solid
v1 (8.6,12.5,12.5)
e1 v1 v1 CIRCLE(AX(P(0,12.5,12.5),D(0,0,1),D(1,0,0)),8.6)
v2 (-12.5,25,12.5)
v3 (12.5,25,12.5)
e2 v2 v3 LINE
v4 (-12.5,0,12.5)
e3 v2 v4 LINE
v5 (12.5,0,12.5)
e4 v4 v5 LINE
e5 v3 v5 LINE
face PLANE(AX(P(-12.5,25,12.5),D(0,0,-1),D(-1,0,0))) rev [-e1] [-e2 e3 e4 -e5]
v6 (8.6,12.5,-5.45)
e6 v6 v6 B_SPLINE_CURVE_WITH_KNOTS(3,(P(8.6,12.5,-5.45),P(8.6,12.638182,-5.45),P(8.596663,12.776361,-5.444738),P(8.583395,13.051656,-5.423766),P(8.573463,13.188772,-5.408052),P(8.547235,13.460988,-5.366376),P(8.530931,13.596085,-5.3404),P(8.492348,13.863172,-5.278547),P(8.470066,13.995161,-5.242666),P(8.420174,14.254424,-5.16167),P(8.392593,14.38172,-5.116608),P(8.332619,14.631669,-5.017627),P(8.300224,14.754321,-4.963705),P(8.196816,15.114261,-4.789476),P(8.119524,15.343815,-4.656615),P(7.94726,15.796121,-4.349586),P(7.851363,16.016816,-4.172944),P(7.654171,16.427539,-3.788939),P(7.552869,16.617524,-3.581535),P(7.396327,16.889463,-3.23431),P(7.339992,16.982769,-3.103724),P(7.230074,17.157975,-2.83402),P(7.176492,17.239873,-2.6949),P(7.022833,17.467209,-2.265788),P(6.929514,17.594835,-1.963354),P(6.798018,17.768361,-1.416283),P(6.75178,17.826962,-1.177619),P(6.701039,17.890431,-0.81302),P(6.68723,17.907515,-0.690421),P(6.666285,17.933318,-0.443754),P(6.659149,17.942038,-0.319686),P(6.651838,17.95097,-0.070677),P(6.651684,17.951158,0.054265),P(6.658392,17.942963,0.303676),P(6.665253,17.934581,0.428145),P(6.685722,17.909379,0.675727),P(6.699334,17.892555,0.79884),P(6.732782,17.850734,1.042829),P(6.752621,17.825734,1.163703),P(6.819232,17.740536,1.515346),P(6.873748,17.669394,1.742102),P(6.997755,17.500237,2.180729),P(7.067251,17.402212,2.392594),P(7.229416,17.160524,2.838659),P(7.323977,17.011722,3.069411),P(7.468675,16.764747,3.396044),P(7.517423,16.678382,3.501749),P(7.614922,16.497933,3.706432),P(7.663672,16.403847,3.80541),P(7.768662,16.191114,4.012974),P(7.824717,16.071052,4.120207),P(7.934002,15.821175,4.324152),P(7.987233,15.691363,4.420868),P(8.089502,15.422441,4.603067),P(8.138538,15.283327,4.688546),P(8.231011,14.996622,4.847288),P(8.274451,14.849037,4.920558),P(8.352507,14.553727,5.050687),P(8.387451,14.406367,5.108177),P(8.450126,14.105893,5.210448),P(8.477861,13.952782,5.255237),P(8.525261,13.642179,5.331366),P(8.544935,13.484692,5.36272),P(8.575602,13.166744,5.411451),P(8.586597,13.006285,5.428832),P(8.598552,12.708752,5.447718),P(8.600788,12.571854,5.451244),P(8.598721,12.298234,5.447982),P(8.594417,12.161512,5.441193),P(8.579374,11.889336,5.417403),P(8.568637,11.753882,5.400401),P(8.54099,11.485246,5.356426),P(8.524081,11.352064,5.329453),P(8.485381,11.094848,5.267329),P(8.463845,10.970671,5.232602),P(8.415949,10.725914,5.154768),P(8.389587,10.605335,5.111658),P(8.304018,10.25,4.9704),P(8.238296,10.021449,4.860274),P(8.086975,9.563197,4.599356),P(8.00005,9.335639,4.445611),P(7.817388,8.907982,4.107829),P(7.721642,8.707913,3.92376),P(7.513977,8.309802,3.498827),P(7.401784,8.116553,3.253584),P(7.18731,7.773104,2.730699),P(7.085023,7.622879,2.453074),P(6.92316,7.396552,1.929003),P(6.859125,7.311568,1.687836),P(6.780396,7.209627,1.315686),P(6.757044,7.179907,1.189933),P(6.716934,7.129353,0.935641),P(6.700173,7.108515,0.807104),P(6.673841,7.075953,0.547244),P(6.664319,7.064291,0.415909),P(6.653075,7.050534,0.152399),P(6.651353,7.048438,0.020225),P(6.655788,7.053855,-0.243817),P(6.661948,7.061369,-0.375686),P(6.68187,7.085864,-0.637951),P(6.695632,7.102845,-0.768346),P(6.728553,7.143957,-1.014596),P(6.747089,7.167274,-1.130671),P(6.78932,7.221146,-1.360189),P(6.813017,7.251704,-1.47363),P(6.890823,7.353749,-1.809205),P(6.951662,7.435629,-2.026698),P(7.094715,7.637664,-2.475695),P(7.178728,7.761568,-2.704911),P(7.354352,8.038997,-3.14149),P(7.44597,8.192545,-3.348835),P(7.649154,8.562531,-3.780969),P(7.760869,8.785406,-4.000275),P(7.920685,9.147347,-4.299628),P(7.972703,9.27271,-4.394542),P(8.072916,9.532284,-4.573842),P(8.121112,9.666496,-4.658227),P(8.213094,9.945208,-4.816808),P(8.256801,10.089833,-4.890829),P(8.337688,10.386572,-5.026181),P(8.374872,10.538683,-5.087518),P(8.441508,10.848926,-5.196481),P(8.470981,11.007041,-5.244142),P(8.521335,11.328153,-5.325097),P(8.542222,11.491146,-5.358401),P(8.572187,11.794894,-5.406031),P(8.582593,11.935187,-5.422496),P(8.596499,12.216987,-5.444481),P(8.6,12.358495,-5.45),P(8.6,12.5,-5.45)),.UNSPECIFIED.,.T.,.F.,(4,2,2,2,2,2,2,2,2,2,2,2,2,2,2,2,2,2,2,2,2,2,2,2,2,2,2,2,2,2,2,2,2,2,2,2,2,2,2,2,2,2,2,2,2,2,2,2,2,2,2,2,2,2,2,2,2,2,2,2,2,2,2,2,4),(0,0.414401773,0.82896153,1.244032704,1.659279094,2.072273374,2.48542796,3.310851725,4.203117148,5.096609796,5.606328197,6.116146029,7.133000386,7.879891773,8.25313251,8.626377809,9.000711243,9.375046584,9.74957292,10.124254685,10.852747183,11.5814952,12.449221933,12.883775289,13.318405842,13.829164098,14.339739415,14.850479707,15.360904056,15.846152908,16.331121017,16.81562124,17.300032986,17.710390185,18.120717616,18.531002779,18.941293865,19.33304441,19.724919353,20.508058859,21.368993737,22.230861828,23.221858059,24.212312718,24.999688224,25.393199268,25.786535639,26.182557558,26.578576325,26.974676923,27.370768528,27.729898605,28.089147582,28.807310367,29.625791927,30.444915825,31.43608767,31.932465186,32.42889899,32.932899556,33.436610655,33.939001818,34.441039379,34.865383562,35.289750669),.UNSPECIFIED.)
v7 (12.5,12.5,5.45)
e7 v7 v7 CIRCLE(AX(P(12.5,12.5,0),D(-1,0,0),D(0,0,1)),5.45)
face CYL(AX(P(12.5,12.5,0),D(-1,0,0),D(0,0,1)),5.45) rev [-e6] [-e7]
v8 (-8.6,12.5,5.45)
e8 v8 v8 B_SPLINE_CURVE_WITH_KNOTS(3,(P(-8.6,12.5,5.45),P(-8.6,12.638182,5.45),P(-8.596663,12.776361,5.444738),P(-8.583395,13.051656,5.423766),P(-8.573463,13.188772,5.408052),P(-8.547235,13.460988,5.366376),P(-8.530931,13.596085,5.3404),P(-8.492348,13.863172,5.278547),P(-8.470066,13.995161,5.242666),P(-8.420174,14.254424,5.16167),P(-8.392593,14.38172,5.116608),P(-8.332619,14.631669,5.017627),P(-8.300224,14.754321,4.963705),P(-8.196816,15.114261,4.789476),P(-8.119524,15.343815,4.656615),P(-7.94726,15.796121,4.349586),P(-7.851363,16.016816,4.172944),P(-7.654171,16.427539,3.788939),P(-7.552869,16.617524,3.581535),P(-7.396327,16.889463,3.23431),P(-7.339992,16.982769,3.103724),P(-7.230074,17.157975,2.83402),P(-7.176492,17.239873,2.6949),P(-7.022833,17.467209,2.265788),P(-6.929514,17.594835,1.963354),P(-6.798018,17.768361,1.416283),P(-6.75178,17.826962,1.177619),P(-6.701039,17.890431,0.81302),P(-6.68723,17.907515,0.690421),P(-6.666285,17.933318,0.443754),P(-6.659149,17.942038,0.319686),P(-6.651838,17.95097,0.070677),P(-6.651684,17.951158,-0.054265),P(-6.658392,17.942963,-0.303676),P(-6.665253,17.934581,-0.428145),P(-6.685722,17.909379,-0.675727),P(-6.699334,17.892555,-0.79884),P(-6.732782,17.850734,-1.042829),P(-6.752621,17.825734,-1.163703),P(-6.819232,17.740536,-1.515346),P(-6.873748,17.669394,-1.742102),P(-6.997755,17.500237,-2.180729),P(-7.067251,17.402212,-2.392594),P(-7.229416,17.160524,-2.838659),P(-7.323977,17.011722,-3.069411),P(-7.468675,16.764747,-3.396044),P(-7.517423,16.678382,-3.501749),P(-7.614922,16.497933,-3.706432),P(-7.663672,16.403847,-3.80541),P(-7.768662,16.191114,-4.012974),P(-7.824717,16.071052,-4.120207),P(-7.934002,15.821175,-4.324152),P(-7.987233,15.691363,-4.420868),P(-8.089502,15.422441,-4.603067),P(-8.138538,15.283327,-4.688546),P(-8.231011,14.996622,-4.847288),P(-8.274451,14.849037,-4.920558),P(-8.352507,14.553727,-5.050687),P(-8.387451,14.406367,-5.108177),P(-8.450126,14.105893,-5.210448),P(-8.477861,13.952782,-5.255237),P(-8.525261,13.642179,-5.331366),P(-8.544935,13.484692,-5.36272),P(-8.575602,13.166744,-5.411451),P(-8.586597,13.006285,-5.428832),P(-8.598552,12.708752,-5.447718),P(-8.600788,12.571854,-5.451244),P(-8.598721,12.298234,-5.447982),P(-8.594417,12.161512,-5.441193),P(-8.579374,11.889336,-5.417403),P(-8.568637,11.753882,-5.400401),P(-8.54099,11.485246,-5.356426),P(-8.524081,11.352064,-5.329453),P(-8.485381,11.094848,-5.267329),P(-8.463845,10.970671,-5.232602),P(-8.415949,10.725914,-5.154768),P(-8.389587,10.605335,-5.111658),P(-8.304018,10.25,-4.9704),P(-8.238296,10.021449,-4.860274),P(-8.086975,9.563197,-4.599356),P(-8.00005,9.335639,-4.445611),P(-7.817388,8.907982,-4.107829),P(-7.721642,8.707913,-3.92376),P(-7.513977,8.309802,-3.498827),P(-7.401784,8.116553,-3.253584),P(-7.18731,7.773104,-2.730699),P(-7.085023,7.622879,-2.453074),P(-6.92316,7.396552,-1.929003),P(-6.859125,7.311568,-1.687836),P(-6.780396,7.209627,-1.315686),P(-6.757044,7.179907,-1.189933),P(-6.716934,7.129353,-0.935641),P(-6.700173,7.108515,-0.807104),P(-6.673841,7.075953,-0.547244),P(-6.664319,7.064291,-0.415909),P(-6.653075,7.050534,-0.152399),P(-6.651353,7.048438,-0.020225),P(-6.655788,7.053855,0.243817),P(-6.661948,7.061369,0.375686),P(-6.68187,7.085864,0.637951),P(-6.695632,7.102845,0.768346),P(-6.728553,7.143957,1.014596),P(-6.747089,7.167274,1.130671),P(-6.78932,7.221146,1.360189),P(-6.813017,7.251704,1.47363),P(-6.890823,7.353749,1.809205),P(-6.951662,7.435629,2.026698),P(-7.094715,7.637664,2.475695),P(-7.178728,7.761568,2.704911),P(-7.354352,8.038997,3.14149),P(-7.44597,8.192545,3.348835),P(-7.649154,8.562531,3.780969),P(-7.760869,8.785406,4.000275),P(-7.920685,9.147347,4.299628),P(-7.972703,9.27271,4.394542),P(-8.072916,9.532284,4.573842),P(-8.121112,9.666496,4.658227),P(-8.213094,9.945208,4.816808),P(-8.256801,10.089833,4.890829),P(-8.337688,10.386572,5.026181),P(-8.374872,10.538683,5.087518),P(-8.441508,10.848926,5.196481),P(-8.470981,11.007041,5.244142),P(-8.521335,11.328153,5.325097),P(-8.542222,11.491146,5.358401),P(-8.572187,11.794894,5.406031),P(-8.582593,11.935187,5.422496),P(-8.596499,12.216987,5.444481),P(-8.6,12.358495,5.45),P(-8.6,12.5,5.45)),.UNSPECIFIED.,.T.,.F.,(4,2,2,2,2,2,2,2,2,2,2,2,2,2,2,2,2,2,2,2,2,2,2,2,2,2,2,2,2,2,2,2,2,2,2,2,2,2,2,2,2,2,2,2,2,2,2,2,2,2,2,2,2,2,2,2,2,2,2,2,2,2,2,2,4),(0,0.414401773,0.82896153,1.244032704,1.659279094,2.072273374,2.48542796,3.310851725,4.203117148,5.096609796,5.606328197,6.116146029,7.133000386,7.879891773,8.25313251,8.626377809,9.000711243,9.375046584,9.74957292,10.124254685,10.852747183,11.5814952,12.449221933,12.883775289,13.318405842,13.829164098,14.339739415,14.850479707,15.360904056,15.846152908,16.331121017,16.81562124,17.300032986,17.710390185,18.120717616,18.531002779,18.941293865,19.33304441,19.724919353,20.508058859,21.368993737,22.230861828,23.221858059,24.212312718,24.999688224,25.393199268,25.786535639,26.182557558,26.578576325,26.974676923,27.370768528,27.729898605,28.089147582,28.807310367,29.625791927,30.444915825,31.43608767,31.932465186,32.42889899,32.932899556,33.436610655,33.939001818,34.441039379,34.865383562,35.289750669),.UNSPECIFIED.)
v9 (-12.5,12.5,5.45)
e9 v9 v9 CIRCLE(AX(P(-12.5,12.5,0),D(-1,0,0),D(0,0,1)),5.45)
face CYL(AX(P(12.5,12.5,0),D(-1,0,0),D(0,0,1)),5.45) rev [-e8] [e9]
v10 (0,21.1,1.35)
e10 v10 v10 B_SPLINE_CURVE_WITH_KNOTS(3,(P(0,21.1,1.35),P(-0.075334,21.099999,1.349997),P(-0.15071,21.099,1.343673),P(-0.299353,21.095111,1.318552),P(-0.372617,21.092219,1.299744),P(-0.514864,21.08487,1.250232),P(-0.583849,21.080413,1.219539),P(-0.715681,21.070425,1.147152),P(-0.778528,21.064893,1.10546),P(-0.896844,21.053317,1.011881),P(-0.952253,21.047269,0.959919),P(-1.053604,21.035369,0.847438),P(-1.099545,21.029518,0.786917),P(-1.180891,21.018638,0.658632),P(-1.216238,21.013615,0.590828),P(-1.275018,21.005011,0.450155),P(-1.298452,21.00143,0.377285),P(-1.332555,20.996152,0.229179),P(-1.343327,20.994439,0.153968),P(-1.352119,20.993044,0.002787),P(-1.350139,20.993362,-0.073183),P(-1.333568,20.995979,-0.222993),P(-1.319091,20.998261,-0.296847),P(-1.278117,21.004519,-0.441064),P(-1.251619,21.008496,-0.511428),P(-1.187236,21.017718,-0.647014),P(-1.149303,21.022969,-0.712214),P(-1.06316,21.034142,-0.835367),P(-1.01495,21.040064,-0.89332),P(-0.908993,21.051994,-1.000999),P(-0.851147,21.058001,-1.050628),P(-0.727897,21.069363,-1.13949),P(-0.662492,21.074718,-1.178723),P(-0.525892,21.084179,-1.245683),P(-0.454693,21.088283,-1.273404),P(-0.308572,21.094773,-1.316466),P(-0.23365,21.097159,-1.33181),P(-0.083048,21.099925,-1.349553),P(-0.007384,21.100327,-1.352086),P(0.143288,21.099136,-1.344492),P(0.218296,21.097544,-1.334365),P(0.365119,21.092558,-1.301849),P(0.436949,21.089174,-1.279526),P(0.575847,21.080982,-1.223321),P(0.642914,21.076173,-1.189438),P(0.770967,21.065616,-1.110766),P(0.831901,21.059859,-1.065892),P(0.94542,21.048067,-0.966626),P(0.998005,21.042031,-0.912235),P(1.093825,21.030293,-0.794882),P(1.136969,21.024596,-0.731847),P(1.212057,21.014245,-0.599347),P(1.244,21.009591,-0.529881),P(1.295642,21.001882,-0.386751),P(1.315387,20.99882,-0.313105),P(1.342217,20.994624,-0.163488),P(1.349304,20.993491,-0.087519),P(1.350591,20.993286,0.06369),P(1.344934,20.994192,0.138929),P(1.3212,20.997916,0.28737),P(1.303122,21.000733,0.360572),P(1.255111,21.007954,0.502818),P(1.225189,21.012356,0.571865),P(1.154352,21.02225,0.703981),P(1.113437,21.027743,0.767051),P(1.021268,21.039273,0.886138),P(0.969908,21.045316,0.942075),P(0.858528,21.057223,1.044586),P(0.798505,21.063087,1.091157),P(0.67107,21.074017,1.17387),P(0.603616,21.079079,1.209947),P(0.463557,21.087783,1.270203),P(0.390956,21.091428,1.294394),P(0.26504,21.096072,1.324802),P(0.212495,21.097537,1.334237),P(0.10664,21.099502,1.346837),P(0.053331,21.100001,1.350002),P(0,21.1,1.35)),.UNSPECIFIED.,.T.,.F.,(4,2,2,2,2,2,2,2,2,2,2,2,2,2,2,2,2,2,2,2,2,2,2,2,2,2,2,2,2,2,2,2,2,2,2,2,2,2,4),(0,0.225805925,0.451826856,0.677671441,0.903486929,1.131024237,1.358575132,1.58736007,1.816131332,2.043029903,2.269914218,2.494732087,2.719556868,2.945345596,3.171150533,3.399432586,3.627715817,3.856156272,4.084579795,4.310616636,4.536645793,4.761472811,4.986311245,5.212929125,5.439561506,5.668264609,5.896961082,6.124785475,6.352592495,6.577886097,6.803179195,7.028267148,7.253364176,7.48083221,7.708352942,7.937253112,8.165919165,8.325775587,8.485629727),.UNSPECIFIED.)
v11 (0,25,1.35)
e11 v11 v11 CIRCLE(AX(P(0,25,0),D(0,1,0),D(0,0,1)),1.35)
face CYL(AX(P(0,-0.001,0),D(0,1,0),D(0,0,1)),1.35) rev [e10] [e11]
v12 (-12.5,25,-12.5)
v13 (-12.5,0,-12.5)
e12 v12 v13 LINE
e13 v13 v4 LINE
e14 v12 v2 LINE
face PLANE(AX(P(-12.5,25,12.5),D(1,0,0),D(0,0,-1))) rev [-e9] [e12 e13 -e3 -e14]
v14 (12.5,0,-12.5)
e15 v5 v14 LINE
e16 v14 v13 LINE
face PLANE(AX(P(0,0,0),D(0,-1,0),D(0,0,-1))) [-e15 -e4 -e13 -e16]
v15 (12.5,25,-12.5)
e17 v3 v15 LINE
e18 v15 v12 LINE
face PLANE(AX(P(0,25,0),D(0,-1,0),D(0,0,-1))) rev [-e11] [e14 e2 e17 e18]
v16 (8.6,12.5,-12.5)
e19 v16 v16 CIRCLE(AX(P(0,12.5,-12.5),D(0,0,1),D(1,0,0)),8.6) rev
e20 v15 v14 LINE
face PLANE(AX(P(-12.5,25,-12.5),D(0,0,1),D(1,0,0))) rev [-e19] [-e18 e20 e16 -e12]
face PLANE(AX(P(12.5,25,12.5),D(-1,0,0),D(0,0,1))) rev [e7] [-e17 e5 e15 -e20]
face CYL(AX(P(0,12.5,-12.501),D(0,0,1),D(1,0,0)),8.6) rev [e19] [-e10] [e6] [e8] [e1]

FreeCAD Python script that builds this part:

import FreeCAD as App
import Part
import Sketcher

doc = App.newDocument("Part")
body = doc.addObject("PartDesign::Body", "Body")

sketch1 = body.newObject("Sketcher::SketchObject", "Sketch")
sketch1.AttachmentSupport = (doc.getObject("XZ_Plane"), [""])
sketch1.MapMode = "FlatFace"
sketch1.addGeometry(Part.LineSegment(App.Vector(-12, -12, 0), App.Vector(-12, 12, 0)), False)
sketch1.addGeometry(Part.LineSegment(App.Vector(-12, 12, 0), App.Vector(12, 12, 0)), False)
sketch1.addGeometry(Part.LineSegment(App.Vector(12, 12, 0), App.Vector(12, -12, 0)), False)
sketch1.addGeometry(Part.LineSegment(App.Vector(12, -12, 0), App.Vector(-12, -12, 0)), False)
sketch1.addConstraint(Sketcher.Constraint("Coincident", 0, 2, 1, 1))
sketch1.addConstraint(Sketcher.Constraint("Coincident", 1, 2, 2, 1))
sketch1.addConstraint(Sketcher.Constraint("Coincident", 2, 2, 3, 1))
sketch1.addConstraint(Sketcher.Constraint("Coincident", 3, 2, 0, 1))
sketch1.addConstraint(Sketcher.Constraint("Vertical", 0))
sketch1.addConstraint(Sketcher.Constraint("Horizontal", 1))
sketch1.addConstraint(Sketcher.Constraint("Vertical", 2))
sketch1.addConstraint(Sketcher.Constraint("Horizontal", 3))
sketch1.addConstraint(Sketcher.Constraint("Symmetric", 0, 2, 2, 2, -1, 1))
sketch1.addConstraint(Sketcher.Constraint("Equal", 3, 0))
sketch1.addConstraint(Sketcher.Constraint("DistanceX", 1, 1, 1, 2, 25.0))
pad1 = body.newObject("PartDesign::Pad", "Pad")
pad1.Profile = sketch1
pad1.Length = 25
pad1.Reversed = True

sketch2 = body.newObject("Sketcher::SketchObject", "Sketch001")
sketch2.AttachmentSupport = (doc.getObject("XY_Plane"), [""])
sketch2.MapMode = "FlatFace"
sketch2.AttachmentOffset = App.Placement(App.Vector(0, 0, 12.5), App.Rotation())
sketch2.addGeometry(Part.Circle(App.Vector(0, 12, 0), App.Vector(0, 0, 1), 9), False)
sketch2.addConstraint(Sketcher.Constraint("PointOnObject", 0, 3, -2))
sketch2.addConstraint(Sketcher.Constraint("Diameter", 0, 17.2))
sketch2.addConstraint(Sketcher.Constraint("DistanceY", -1, 1, 0, 3, 12.5))
pocket1 = body.newObject("PartDesign::Pocket", "Pocket")
pocket1.Profile = sketch2
pocket1.Type = "UpToFirst"

sketch3 = body.newObject("Sketcher::SketchObject", "Sketch002")
sketch3.AttachmentSupport = (doc.getObject("XZ_Plane"), [""])
sketch3.MapMode = "FlatFace"
sketch3.AttachmentOffset = App.Placement(App.Vector(0, 0, -25), App.Rotation())
sketch3.addGeometry(Part.Circle(App.Vector(0, 0, 0), App.Vector(0, 0, 1), 1.4), False)
sketch3.addConstraint(Sketcher.Constraint("Coincident", 0, 3, -1, 1))
sketch3.addConstraint(Sketcher.Constraint("Diameter", 0, 2.7))
pocket2 = body.newObject("PartDesign::Pocket", "Pocket001")
pocket2.Profile = sketch3
pocket2.Type = "UpToFirst"
pocket2.Reversed = True

sketch4 = body.newObject("Sketcher::SketchObject", "Sketch003")
sketch4.AttachmentSupport = (doc.getObject("YZ_Plane"), [""])
sketch4.MapMode = "FlatFace"
sketch4.AttachmentOffset = App.Placement(App.Vector(0, 0, -12.5), App.Rotation())
sketch4.addGeometry(Part.Circle(App.Vector(12, 0, 0), App.Vector(0, 0, 1), 5), False)
sketch4.addConstraint(Sketcher.Constraint("PointOnObject", 0, 3, -1))
sketch4.addConstraint(Sketcher.Constraint("Diameter", 0, 10.9))
sketch4.addConstraint(Sketcher.Constraint("DistanceX", -1, 1, 0, 3, 12.5))
pocket3 = body.newObject("PartDesign::Pocket", "Pocket002")
pocket3.Profile = sketch4
pocket3.Type = "ThroughAll"
pocket3.Reversed = True

doc.recompute()
